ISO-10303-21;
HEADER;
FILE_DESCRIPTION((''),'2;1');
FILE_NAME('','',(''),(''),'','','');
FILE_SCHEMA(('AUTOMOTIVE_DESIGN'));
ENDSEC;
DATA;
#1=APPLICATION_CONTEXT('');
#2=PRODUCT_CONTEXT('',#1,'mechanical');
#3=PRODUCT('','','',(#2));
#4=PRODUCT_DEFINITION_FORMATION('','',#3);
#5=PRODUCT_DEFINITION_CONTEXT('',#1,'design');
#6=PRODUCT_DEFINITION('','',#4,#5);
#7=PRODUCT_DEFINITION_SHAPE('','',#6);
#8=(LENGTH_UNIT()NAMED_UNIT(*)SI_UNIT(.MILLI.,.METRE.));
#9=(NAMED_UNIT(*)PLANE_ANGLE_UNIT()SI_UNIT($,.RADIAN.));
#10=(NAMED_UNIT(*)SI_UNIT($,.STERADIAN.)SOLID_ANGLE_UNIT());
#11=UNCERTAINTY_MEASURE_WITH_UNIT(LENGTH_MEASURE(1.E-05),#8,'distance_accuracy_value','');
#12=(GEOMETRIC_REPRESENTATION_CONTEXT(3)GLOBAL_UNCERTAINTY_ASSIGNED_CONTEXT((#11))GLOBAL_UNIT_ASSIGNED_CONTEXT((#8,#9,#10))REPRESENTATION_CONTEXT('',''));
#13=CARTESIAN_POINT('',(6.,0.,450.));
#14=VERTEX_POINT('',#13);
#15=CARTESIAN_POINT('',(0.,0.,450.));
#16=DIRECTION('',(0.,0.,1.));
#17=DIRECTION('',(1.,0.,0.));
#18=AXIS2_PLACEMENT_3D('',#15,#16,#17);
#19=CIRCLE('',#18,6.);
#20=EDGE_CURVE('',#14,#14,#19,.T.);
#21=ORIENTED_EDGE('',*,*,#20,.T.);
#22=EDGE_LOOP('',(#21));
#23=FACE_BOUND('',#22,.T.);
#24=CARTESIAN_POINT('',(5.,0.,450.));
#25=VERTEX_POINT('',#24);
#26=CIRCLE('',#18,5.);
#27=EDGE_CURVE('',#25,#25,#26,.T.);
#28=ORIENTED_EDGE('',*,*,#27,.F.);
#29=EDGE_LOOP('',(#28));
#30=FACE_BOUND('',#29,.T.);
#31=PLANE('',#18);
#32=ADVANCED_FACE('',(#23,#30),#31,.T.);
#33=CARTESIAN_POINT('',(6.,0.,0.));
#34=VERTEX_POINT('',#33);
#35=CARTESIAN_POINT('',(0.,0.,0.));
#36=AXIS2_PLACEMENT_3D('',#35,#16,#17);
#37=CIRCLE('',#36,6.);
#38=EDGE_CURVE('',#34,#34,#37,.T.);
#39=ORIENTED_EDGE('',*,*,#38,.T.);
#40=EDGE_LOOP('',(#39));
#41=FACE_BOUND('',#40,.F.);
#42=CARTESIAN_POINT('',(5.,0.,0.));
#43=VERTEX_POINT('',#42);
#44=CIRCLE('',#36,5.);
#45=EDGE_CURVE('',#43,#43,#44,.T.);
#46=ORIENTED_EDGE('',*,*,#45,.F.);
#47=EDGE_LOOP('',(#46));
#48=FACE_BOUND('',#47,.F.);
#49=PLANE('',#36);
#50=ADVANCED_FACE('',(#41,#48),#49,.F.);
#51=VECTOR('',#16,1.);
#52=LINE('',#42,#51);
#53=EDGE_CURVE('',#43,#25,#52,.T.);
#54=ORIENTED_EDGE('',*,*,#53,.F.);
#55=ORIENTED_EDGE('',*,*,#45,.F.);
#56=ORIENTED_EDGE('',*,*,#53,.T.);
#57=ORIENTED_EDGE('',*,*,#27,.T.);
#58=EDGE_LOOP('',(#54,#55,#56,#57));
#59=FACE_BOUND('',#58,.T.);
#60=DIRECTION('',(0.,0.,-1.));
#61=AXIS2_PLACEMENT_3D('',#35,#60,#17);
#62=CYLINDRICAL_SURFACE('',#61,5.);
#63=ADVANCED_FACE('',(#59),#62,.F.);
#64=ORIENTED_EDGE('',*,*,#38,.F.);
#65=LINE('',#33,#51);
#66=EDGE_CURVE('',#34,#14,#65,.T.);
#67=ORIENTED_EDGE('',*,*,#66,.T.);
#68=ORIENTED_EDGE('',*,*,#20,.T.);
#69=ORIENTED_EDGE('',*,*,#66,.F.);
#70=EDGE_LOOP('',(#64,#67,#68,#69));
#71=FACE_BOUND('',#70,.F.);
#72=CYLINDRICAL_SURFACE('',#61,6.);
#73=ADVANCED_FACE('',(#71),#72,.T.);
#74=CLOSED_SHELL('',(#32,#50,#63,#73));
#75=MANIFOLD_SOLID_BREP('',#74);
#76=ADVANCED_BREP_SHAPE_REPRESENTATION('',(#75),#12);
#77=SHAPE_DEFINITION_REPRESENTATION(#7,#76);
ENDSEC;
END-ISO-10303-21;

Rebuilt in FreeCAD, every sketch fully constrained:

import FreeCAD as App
import Part
import Sketcher
Q = App.Units.Quantity

doc = App.newDocument("Part")
params = doc.addObject("Spreadsheet::Sheet", "Params")
for row, (alias, value) in enumerate([
    ("sketch1_diameter", "12 mm"),
    ("sketch1_diameter2", "10 mm"),
    ("pad1_length", "450 mm"),
], start=1):
    params.set(f"A{row}", alias)
    params.set(f"B{row}", "=" + value)
    params.setAlias(f"B{row}", alias)

body = doc.addObject("PartDesign::Body", "Body")

# Sketch on XY plane
sketch1 = body.newObject("Sketcher::SketchObject", "Sketch")
sketch1.AttachmentSupport = (doc.getObject("XY_Plane"), [""])
sketch1.MapMode = "FlatFace"
sketch1.addGeometry(Part.Circle(App.Vector(0, 0, 0), App.Vector(0, 0, 1), 6), False)
sketch1.addGeometry(Part.Circle(App.Vector(0, 0, 0), App.Vector(0, 0, 1), 5), False)
sketch1.addConstraint(Sketcher.Constraint("Coincident", 0, 3, -1, 1))
sketch1.addConstraint(Sketcher.Constraint("Coincident", 1, 3, -1, 1))
sketch1.addConstraint(Sketcher.Constraint("Diameter", 0, Q("12 mm")))
sketch1.addConstraint(Sketcher.Constraint("Diameter", 1, Q("10 mm")))
sketch1.setExpression("Constraints[2]", "Params.sketch1_diameter")
sketch1.setExpression("Constraints[3]", "Params.sketch1_diameter2")
pad1 = body.newObject("PartDesign::Pad", "Pad")
pad1.Profile = sketch1
pad1.setExpression("Length", "Params.pad1_length")

doc.recompute()
